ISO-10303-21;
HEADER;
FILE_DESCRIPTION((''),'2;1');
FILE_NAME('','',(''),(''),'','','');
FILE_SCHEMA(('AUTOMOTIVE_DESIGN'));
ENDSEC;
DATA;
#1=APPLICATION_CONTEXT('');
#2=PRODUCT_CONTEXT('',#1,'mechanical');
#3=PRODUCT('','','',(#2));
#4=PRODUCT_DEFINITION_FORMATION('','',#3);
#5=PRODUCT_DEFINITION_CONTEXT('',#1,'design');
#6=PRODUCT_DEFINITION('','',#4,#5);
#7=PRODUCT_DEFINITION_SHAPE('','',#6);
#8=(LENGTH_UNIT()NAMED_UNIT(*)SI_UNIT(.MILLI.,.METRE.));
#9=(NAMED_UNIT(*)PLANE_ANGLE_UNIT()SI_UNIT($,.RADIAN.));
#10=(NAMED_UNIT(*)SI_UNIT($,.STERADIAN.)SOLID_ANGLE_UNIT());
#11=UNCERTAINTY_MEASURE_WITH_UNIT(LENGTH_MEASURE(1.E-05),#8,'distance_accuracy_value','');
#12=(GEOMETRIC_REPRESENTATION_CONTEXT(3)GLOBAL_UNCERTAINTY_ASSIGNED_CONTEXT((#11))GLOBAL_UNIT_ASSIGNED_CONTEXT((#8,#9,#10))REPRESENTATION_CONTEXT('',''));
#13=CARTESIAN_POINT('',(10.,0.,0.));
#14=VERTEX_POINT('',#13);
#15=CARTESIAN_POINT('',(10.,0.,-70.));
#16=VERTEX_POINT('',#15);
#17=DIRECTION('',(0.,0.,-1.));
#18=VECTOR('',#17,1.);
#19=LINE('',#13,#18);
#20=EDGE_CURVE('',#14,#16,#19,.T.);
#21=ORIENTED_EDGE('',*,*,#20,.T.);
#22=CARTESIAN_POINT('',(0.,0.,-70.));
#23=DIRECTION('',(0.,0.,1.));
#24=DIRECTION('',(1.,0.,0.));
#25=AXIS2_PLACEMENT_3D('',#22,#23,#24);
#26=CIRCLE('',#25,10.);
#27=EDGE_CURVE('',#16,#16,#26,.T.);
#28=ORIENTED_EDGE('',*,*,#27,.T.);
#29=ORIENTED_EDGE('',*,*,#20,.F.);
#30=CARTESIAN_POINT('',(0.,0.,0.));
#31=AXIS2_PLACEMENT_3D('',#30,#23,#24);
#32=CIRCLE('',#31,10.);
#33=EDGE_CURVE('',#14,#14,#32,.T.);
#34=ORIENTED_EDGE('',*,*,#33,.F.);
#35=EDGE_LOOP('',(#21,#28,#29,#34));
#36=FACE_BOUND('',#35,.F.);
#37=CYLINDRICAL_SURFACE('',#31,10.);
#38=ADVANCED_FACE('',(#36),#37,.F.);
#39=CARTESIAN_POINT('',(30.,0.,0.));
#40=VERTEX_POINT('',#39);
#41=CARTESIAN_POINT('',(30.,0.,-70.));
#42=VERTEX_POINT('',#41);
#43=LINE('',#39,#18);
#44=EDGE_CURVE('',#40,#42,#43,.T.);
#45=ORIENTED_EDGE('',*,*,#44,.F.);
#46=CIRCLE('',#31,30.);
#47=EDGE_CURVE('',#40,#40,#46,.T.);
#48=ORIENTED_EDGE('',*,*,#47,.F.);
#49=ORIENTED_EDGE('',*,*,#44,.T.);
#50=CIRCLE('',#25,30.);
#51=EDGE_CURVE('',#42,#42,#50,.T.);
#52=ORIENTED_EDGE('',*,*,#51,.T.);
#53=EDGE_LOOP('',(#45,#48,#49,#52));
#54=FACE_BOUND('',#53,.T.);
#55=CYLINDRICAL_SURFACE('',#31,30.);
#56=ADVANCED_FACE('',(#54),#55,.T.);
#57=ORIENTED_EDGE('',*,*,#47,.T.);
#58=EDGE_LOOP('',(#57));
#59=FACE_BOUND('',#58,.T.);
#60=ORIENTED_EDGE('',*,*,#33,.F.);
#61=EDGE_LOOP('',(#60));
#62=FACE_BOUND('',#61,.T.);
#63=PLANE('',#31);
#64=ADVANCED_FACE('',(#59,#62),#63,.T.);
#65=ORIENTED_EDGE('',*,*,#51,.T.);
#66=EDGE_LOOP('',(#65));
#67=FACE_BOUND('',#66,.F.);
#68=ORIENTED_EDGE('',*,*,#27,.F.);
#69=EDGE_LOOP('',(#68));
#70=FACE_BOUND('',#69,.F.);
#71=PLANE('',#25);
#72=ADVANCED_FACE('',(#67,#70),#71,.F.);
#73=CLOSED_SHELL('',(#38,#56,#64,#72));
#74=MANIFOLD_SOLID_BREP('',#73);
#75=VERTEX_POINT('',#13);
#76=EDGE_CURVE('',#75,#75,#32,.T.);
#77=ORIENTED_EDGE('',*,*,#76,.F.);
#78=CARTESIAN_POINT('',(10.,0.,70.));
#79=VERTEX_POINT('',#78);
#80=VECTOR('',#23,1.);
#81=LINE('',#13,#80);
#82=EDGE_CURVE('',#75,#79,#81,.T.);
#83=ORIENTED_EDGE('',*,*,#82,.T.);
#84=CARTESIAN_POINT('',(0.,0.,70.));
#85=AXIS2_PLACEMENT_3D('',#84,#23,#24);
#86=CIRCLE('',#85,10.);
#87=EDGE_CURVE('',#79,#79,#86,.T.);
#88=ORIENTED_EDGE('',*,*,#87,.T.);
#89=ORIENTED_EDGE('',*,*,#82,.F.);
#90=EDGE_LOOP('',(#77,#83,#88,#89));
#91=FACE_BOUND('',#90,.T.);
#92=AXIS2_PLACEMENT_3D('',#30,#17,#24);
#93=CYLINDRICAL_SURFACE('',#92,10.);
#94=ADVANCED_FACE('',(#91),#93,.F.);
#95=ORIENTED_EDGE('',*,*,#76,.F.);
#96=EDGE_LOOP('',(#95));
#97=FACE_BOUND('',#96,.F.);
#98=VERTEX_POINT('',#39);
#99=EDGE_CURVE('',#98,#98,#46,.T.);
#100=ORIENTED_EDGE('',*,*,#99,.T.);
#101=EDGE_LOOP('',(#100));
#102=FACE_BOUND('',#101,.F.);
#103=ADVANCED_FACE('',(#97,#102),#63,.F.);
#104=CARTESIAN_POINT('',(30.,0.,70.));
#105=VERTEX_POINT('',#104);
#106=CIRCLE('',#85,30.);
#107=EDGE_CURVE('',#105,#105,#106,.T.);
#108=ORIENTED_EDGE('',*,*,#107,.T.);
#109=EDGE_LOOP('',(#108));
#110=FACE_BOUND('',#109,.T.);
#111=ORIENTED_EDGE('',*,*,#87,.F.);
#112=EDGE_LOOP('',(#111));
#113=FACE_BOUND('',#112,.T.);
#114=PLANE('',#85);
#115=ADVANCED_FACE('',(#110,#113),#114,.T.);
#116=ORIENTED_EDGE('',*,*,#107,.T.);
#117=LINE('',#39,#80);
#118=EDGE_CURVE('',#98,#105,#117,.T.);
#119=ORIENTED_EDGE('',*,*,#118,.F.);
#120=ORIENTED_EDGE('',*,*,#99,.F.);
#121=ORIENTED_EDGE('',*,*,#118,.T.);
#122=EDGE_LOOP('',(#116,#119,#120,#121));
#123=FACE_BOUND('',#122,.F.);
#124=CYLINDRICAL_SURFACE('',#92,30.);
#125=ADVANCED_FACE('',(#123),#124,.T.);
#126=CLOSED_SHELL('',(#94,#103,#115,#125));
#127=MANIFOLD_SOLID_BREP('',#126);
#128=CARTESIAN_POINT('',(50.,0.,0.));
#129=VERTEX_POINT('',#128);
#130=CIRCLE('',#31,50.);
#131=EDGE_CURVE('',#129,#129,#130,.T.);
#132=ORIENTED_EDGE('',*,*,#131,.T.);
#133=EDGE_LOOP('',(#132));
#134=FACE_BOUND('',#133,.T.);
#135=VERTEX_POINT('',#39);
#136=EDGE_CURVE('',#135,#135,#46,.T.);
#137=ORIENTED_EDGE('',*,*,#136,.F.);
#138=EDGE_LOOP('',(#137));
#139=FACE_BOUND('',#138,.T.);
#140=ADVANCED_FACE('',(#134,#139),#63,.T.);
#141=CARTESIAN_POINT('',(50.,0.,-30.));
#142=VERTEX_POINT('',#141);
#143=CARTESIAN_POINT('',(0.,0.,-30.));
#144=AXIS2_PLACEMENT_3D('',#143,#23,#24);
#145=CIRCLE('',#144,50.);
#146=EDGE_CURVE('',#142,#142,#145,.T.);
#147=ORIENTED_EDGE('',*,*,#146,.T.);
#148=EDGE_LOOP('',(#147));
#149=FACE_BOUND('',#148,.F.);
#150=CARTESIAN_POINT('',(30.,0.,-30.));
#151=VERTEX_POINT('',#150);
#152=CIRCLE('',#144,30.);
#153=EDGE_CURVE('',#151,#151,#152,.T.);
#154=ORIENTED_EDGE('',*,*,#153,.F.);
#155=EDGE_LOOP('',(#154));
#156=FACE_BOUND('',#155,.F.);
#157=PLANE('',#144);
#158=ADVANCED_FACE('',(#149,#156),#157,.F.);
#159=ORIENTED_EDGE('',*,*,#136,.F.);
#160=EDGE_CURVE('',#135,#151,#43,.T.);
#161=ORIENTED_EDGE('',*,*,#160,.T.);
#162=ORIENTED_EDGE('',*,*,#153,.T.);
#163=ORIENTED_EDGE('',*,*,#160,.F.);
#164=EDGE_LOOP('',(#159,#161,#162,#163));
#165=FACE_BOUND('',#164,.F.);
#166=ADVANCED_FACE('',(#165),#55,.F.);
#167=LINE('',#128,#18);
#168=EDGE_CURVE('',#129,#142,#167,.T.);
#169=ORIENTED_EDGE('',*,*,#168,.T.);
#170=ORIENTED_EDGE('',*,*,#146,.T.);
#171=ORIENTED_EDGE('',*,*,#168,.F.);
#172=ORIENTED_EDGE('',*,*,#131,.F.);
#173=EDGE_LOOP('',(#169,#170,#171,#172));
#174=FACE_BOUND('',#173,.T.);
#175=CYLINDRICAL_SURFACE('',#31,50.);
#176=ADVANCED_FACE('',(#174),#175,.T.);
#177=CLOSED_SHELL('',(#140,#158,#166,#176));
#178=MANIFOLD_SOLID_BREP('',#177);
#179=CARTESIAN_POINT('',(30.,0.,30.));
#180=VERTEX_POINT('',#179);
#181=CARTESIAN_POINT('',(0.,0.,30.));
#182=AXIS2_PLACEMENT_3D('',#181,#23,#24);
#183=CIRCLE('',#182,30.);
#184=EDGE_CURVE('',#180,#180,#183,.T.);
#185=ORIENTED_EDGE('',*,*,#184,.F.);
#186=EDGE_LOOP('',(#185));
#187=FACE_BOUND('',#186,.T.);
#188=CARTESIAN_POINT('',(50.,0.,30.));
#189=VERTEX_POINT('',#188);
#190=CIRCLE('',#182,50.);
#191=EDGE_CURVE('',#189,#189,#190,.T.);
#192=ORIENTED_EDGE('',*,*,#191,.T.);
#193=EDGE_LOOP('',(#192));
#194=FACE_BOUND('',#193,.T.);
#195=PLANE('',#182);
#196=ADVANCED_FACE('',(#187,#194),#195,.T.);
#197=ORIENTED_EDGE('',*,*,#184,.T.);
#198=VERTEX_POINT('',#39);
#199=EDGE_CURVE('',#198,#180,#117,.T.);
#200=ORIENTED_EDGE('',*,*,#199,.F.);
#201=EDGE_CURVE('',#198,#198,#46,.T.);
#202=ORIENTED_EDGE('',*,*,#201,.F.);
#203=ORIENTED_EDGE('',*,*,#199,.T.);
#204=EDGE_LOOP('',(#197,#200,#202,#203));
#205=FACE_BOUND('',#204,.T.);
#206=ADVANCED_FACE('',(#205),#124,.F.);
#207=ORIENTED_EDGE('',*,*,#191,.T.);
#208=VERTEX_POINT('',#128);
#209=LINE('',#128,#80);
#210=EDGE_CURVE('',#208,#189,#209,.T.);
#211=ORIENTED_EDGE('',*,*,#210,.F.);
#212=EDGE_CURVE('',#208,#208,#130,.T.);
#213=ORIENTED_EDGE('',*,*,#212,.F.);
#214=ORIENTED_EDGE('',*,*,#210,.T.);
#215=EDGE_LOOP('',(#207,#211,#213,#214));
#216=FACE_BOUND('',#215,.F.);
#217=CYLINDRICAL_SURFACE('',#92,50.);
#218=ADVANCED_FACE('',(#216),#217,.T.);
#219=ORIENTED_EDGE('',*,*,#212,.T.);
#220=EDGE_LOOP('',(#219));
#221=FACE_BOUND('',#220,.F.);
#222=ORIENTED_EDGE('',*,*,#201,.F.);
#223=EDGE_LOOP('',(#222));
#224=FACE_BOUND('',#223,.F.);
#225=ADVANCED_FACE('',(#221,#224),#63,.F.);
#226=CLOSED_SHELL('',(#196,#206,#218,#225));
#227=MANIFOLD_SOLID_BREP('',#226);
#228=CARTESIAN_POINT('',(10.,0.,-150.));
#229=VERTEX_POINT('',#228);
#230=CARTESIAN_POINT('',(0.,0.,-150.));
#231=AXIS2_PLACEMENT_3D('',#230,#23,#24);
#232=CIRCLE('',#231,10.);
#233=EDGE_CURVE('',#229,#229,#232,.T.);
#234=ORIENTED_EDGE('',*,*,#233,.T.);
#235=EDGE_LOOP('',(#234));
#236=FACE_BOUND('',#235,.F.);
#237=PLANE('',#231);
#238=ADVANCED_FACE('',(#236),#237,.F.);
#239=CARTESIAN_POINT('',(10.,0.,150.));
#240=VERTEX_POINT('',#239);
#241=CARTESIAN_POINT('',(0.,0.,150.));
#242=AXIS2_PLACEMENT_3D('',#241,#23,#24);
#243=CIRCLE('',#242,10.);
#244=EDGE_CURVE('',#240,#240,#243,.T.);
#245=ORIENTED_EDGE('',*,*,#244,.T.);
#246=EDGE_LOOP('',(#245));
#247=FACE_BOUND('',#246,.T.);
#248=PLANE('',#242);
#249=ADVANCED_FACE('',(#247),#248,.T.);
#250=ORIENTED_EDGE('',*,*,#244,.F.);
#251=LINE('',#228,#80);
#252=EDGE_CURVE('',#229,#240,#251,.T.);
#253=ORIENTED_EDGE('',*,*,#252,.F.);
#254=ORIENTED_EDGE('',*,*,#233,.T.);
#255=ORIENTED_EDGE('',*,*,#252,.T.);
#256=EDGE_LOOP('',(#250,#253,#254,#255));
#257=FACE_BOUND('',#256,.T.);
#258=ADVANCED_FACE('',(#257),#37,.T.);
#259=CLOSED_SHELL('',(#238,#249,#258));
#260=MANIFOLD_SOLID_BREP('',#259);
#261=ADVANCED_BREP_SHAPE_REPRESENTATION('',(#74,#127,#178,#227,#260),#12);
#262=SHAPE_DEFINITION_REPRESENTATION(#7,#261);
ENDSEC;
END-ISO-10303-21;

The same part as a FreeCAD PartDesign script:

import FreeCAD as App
import Part
import Sketcher

V = App.Vector

doc = App.newDocument("Part")
body = doc.addObject("PartDesign::Body", "Body")

# Sketch on XY plane
sketch1 = body.newObject("Sketcher::SketchObject", "Sketch")
sketch1.AttachmentSupport = (doc.getObject("XY_Plane"), [""])
sketch1.MapMode = "FlatFace"
sketch1.addGeometry(Part.Circle(V(0, 0, 0), V(0, 0, 1), 10), False)
sketch1.addConstraint([
    Sketcher.Constraint("Coincident", 0, 3, -1, 1),
    Sketcher.Constraint("Diameter", 0, 20.0),
])
pad1 = body.newObject("PartDesign::Pad", "Pad")
pad1.Profile = sketch1
pad1.Length = 150

# Sketch on XY plane
sketch2 = body.newObject("Sketcher::SketchObject", "Sketch001")
sketch2.AttachmentSupport = (doc.getObject("XY_Plane"), [""])
sketch2.MapMode = "FlatFace"
sketch2.addGeometry(Part.Circle(V(0, 0, 0), V(0, 0, 1), 10), False)
sketch2.addConstraint([
    Sketcher.Constraint("Coincident", 0, 3, -1, 1),
    Sketcher.Constraint("Diameter", 0, 20.0),
])
pad2 = body.newObject("PartDesign::Pad", "Pad001")
pad2.Profile = sketch2
pad2.Length = 150
pad2.Reversed = True
body2 = doc.addObject("PartDesign::Body", "Body001")

# Sketch on XY plane
sketch3 = body2.newObject("Sketcher::SketchObject", "Sketch002")
sketch3.AttachmentSupport = (doc.getObject("XY_Plane001"), [""])
sketch3.MapMode = "FlatFace"
sketch3.addGeometry([
    Part.Circle(V(0, 0, 0), V(0, 0, 1), 50),
    Part.Circle(V(0, 0, 0), V(0, 0, 1), 30),
], False)
sketch3.addConstraint([
    Sketcher.Constraint("Coincident", 0, 3, -1, 1),
    Sketcher.Constraint("Coincident", 1, 3, -1, 1),
    Sketcher.Constraint("Diameter", 0, 100.0),
    Sketcher.Constraint("Diameter", 1, 60.0),
])
pad3 = body2.newObject("PartDesign::Pad", "Pad002")
pad3.Profile = sketch3
pad3.Length = 30
body3 = doc.addObject("PartDesign::Body", "Body002")

# Sketch on XY plane
sketch4 = body3.newObject("Sketcher::SketchObject", "Sketch003")
sketch4.AttachmentSupport = (doc.getObject("XY_Plane002"), [""])
sketch4.MapMode = "FlatFace"
sketch4.addGeometry([
    Part.Circle(V(0, 0, 0), V(0, 0, 1), 30),
    Part.Circle(V(0, 0, 0), V(0, 0, 1), 10),
], False)
sketch4.addConstraint([
    Sketcher.Constraint("Coincident", 0, 3, -1, 1),
    Sketcher.Constraint("Coincident", 1, 3, -1, 1),
    Sketcher.Constraint("Diameter", 0, 60.0),
    Sketcher.Constraint("Diameter", 1, 20.0),
])
pad4 = body3.newObject("PartDesign::Pad", "Pad003")
pad4.Profile = sketch4
pad4.Length = 70
body4 = doc.addObject("PartDesign::Body", "Body003")

# Sketch on XY plane
sketch5 = body4.newObject("Sketcher::SketchObject", "Sketch004")
sketch5.AttachmentSupport = (doc.getObject("XY_Plane003"), [""])
sketch5.MapMode = "FlatFace"
sketch5.addGeometry([
    Part.Circle(V(0, 0, 0), V(0, 0, 1), 30),
    Part.Circle(V(0, 0, 0), V(0, 0, 1), 10),
], False)
sketch5.addConstraint([
    Sketcher.Constraint("Coincident", 0, 3, -1, 1),
    Sketcher.Constraint("Coincident", 1, 3, -1, 1),
    Sketcher.Constraint("Diameter", 0, 60.0),
    Sketcher.Constraint("Diameter", 1, 20.0),
])
pad5 = body4.newObject("PartDesign::Pad", "Pad004")
pad5.Profile = sketch5
pad5.Length = 70
pad5.Reversed = True
body5 = doc.addObject("PartDesign::Body", "Body004")

# Sketch on XY plane
sketch6 = body5.newObject("Sketcher::SketchObject", "Sketch005")
sketch6.AttachmentSupport = (doc.getObject("XY_Plane004"), [""])
sketch6.MapMode = "FlatFace"
sketch6.addGeometry([
    Part.Circle(V(0, 0, 0), V(0, 0, 1), 50),
    Part.Circle(V(0, 0, 0), V(0, 0, 1), 30),
], False)
sketch6.addConstraint([
    Sketcher.Constraint("Coincident", 0, 3, -1, 1),
    Sketcher.Constraint("Coincident", 1, 3, -1, 1),
    Sketcher.Constraint("Diameter", 0, 100.0),
    Sketcher.Constraint("Diameter", 1, 60.0),
])
pad6 = body5.newObject("PartDesign::Pad", "Pad005")
pad6.Profile = sketch6
pad6.Length = 30
pad6.Reversed = True

doc.recompute()
